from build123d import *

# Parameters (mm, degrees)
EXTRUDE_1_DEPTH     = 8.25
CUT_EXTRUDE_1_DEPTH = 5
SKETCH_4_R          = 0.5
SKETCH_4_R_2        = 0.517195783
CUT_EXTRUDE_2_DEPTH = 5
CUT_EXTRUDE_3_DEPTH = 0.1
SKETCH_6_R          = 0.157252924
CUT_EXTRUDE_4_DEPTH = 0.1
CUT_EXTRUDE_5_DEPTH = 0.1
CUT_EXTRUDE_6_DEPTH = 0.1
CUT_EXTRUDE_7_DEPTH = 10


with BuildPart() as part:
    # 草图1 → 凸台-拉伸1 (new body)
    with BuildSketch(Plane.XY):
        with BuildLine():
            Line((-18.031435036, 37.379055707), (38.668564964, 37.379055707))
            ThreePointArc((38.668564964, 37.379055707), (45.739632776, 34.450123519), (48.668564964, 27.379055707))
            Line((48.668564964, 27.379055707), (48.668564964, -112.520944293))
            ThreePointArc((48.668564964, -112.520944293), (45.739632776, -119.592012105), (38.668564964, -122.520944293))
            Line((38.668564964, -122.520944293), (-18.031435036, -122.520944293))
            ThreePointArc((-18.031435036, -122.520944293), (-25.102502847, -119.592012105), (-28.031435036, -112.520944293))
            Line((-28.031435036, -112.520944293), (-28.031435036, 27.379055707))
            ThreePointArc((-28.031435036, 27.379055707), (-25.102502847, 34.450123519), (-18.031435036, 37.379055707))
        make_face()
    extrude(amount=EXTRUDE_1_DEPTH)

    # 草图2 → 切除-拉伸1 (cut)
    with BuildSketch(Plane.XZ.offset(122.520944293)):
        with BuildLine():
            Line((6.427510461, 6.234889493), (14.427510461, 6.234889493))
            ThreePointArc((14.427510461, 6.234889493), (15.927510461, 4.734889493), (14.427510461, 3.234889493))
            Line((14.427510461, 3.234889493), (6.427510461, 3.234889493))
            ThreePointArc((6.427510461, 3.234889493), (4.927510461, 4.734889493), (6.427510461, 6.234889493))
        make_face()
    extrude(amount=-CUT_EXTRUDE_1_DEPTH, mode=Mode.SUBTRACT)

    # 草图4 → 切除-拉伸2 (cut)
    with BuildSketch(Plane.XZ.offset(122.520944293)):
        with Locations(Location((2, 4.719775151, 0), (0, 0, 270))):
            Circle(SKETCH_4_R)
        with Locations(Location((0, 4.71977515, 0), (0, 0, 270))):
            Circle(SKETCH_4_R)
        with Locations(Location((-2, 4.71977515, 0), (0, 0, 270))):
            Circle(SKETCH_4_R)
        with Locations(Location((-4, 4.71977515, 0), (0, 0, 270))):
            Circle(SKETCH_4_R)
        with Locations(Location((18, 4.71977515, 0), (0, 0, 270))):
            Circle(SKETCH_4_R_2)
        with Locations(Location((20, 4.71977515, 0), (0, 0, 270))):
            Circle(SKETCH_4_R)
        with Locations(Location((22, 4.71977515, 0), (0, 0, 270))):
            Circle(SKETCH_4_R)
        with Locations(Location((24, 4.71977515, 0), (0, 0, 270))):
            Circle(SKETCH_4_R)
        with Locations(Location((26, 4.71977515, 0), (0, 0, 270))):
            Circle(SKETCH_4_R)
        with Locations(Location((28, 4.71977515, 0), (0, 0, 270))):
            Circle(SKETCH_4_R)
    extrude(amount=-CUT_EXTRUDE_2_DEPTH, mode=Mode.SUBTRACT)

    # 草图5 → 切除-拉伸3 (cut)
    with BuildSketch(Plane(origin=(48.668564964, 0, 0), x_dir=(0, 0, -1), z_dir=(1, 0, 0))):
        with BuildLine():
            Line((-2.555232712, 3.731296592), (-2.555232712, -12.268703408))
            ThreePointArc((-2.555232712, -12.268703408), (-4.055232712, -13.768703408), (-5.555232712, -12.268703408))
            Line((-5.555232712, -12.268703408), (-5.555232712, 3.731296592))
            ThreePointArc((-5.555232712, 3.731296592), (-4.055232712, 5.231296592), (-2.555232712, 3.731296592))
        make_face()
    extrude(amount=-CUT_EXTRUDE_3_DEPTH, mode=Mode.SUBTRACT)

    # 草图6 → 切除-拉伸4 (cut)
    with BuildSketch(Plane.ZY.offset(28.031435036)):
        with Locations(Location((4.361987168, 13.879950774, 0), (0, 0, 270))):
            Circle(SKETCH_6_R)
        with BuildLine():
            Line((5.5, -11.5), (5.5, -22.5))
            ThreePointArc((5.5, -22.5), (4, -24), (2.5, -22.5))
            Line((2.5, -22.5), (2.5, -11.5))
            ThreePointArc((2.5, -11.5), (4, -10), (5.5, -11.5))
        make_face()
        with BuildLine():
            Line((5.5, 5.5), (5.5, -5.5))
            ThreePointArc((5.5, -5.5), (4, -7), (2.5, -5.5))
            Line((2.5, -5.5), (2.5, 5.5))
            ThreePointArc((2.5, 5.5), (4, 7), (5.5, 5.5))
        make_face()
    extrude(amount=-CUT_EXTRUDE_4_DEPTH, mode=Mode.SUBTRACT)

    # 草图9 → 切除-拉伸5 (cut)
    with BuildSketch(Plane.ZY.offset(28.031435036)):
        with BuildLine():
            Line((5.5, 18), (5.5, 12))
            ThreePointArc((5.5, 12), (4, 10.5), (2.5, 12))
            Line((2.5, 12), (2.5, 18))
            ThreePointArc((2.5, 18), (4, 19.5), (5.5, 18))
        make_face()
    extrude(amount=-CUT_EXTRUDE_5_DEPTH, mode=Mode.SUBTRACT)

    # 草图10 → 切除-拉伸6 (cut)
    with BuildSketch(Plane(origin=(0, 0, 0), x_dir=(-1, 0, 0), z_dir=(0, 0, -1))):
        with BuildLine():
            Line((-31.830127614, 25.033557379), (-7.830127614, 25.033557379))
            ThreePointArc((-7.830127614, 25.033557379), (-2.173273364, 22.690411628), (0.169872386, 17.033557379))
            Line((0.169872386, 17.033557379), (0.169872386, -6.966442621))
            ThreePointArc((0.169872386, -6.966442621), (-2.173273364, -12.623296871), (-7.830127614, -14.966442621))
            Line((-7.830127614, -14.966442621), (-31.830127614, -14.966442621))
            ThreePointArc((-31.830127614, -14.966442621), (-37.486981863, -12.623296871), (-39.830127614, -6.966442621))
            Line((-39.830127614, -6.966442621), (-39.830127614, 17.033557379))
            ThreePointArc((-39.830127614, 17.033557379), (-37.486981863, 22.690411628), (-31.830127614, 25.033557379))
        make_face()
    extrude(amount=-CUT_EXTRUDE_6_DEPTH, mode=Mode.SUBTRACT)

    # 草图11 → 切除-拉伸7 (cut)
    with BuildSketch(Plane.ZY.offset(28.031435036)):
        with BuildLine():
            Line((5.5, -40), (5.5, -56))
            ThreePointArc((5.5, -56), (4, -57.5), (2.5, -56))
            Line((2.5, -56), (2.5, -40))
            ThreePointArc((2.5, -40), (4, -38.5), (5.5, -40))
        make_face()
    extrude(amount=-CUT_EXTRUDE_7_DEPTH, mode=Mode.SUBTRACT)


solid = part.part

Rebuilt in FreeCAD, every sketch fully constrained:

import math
import FreeCAD as App
import Part
import Sketcher

V = App.Vector

doc = App.newDocument("Part")
params = doc.addObject("Spreadsheet::Sheet", "Params")
for row, (alias, value) in enumerate([
    ("sketch1_radius", "10 mm"),
    ("sketch1_width", "56.7 mm"),
    ("sketch1_height", "139.9 mm"),
    ("pad1_length", "8.25 mm"),
    ("sketch2_radius", "1.5 mm"),
    ("sketch2_width", "8 mm"),
    ("pocket1_length", "5 mm"),
    ("sketch3_diameter", "1 mm"),
    ("pocket2_length", "5 mm"),
    ("sketch4_radius", "1.5 mm"),
    ("sketch4_width", "16 mm"),
    ("pocket3_length", "0.1 mm"),
    ("sketch5_radius", "1.5 mm"),
    ("sketch5_width", "11 mm"),
    ("pocket4_length", "0.1 mm"),
    ("sketch6_radius", "1.5 mm"),
    ("sketch6_width", "6 mm"),
    ("pocket5_length", "0.1 mm"),
    ("sketch7_radius", "8 mm"),
    ("sketch7_width", "24 mm"),
    ("pocket6_length", "0.1 mm"),
    ("sketch8_radius", "1.5 mm"),
    ("sketch8_width", "16 mm"),
    ("pocket7_length", "10 mm"),
], start=1):
    params.set(f"A{row}", alias)
    params.set(f"B{row}", "=" + value)
    params.setAlias(f"B{row}", alias)

body = doc.addObject("PartDesign::Body", "Body")

sketch1 = doc.addObject("Sketcher::SketchObject", "Sketch")
body.addObject(sketch1)
sketch1.AttachmentSupport = (doc.XY_Plane, [""])
sketch1.MapMode = "FlatFace"
sketch1.addGeometry(Part.LineSegment(V(38.668565, 37.379056, 0), V(-18.031435, 37.379056, 0)), False)
sketch1.addGeometry(Part.ArcOfCircle(Part.Circle(V(-18.031435, 27.379056, 0), V(0, 0, 1), 10), math.radians(90), math.radians(180)), False)
sketch1.addGeometry(Part.LineSegment(V(-28.031435, 27.379056, 0), V(-28.031435, -112.520944, 0)), False)
sketch1.addGeometry(Part.ArcOfCircle(Part.Circle(V(-18.031435, -112.520944, 0), V(0, 0, 1), 10), math.radians(-180), math.radians(-90)), False)
sketch1.addGeometry(Part.LineSegment(V(-18.031435, -122.520944, 0), V(38.668565, -122.520944, 0)), False)
sketch1.addGeometry(Part.ArcOfCircle(Part.Circle(V(38.668565, -112.520944, 0), V(0, 0, 1), 10), math.radians(-90), math.radians(0)), False)
sketch1.addGeometry(Part.LineSegment(V(48.668565, -112.520944, 0), V(48.668565, 27.379056, 0)), False)
sketch1.addGeometry(Part.ArcOfCircle(Part.Circle(V(38.668565, 27.379056, 0), V(0, 0, 1), 10), math.radians(0), math.radians(90)), False)
sketch1.addConstraint(Sketcher.Constraint("Tangent", 0, 2, 1, 1))
sketch1.addConstraint(Sketcher.Constraint("Tangent", 1, 2, 2, 1))
sketch1.addConstraint(Sketcher.Constraint("Tangent", 2, 2, 3, 1))
sketch1.addConstraint(Sketcher.Constraint("Tangent", 3, 2, 4, 1))
sketch1.addConstraint(Sketcher.Constraint("Tangent", 4, 2, 5, 1))
sketch1.addConstraint(Sketcher.Constraint("Tangent", 5, 2, 6, 1))
sketch1.addConstraint(Sketcher.Constraint("Tangent", 6, 2, 7, 1))
sketch1.addConstraint(Sketcher.Constraint("Tangent", 7, 2, 0, 1))
sketch1.addConstraint(Sketcher.Constraint("Horizontal", 0))
sketch1.addConstraint(Sketcher.Constraint("Vertical", 2))
sketch1.addConstraint(Sketcher.Constraint("Horizontal", 4))
sketch1.addConstraint(Sketcher.Constraint("Vertical", 6))
sketch1.addConstraint(Sketcher.Constraint("Equal", 1, 3))
sketch1.addConstraint(Sketcher.Constraint("Equal", 3, 5))
sketch1.addConstraint(Sketcher.Constraint("Equal", 5, 7))
sketch1.addConstraint(Sketcher.Constraint("Radius", 1, 10.0))
sketch1.addConstraint(Sketcher.Constraint("DistanceX", 0, 2, 0, 1, 56.7))
sketch1.addConstraint(Sketcher.Constraint("DistanceY", 2, 2, 2, 1, 139.9))
sketch1.addConstraint(Sketcher.Constraint("DistanceX", 1, 3, -1, 1, 18.031435))
sketch1.addConstraint(Sketcher.Constraint("DistanceY", -1, 1, 1, 3, 27.379056))
sketch1.setExpression("Constraints[15]", "Params.sketch1_radius")
sketch1.setExpression("Constraints[16]", "Params.sketch1_width")
sketch1.setExpression("Constraints[17]", "Params.sketch1_height")
pad1 = doc.addObject("PartDesign::Pad", "Pad")
body.addObject(pad1)
pad1.Profile = sketch1
pad1.setExpression("Length", "Params.pad1_length")

sketch2 = doc.addObject("Sketcher::SketchObject", "Sketch001")
body.addObject(sketch2)
sketch2.AttachmentSupport = (doc.XZ_Plane, [""])
sketch2.MapMode = "FlatFace"
sketch2.AttachmentOffset = App.Placement(V(0, 0, 122.520944), App.Rotation())
sketch2.addGeometry(Part.LineSegment(V(14.42751, 6.234889, 0), V(6.42751, 6.234889, 0)), False)
sketch2.addGeometry(Part.ArcOfCircle(Part.Circle(V(6.42751, 4.734889, 0), V(0, 0, 1), 1.5), math.radians(90), math.radians(270)), False)
sketch2.addGeometry(Part.LineSegment(V(6.42751, 3.234889, 0), V(14.42751, 3.234889, 0)), False)
sketch2.addGeometry(Part.ArcOfCircle(Part.Circle(V(14.42751, 4.734889, 0), V(0, 0, 1), 1.5), math.radians(-90), math.radians(90)), False)
sketch2.addConstraint(Sketcher.Constraint("Tangent", 0, 2, 1, 1))
sketch2.addConstraint(Sketcher.Constraint("Tangent", 1, 2, 2, 1))
sketch2.addConstraint(Sketcher.Constraint("Tangent", 2, 2, 3, 1))
sketch2.addConstraint(Sketcher.Constraint("Tangent", 3, 2, 0, 1))
sketch2.addConstraint(Sketcher.Constraint("Horizontal", 0))
sketch2.addConstraint(Sketcher.Constraint("Horizontal", 2))
sketch2.addConstraint(Sketcher.Constraint("Radius", 1, 1.5))
sketch2.addConstraint(Sketcher.Constraint("DistanceX", 0, 2, 0, 1, 8.0))
sketch2.addConstraint(Sketcher.Constraint("DistanceX", -1, 1, 1, 3, 6.42751))
sketch2.addConstraint(Sketcher.Constraint("DistanceY", -1, 1, 1, 3, 4.734889))
sketch2.setExpression("Constraints[6]", "Params.sketch2_radius")
sketch2.setExpression("Constraints[7]", "Params.sketch2_width")
pocket1 = doc.addObject("PartDesign::Pocket", "Pocket")
body.addObject(pocket1)
pocket1.Profile = sketch2
pocket1.setExpression("Length", "Params.pocket1_length")

sketch3 = doc.addObject("Sketcher::SketchObject", "Sketch002")
body.addObject(sketch3)
sketch3.AttachmentSupport = (doc.XZ_Plane, [""])
sketch3.MapMode = "FlatFace"
sketch3.AttachmentOffset = App.Placement(V(0, 0, 122.520944), App.Rotation())
sketch3.addGeometry(Part.Circle(V(2, 4.719775, 0), V(0, 0, 1), 0.5), False)
sketch3.addGeometry(Part.Circle(V(0, 4.719775, 0), V(0, 0, 1), 0.5), False)
sketch3.addGeometry(Part.Circle(V(-2, 4.719775, 0), V(0, 0, 1), 0.5), False)
sketch3.addGeometry(Part.Circle(V(-4, 4.719775, 0), V(0, 0, 1), 0.5), False)
sketch3.addGeometry(Part.Circle(V(18, 4.719775, 0), V(0, 0, 1), 0.517196), False)
sketch3.addGeometry(Part.Circle(V(20, 4.719775, 0), V(0, 0, 1), 0.5), False)
sketch3.addGeometry(Part.Circle(V(22, 4.719775, 0), V(0, 0, 1), 0.5), False)
sketch3.addGeometry(Part.Circle(V(24, 4.719775, 0), V(0, 0, 1), 0.5), False)
sketch3.addGeometry(Part.Circle(V(26, 4.719775, 0), V(0, 0, 1), 0.5), False)
sketch3.addGeometry(Part.Circle(V(28, 4.719775, 0), V(0, 0, 1), 0.5), False)
sketch3.addConstraint(Sketcher.Constraint("Equal", 0, 1))
sketch3.addConstraint(Sketcher.Constraint("Equal", 1, 2))
sketch3.addConstraint(Sketcher.Constraint("Equal", 2, 3))
sketch3.addConstraint(Sketcher.Constraint("Equal", 3, 5))
sketch3.addConstraint(Sketcher.Constraint("Equal", 5, 6))
sketch3.addConstraint(Sketcher.Constraint("Equal", 6, 7))
sketch3.addConstraint(Sketcher.Constraint("Equal", 7, 8))
sketch3.addConstraint(Sketcher.Constraint("Equal", 8, 9))
sketch3.addConstraint(Sketcher.Constraint("Symmetric", 0, 3, 2, 3, -2))
sketch3.addConstraint(Sketcher.Constraint("PointOnObject", 1, 3, -2))
sketch3.addConstraint(Sketcher.Constraint("Horizontal", 0, 3, 1, 3))
sketch3.addConstraint(Sketcher.Constraint("Horizontal", 2, 3, 3, 3))
sketch3.addConstraint(Sketcher.Constraint("Horizontal", 3, 3, 4, 3))
sketch3.addConstraint(Sketcher.Constraint("Horizontal", 4, 3, 5, 3))
sketch3.addConstraint(Sketcher.Constraint("Horizontal", 5, 3, 6, 3))
sketch3.addConstraint(Sketcher.Constraint("Horizontal", 6, 3, 7, 3))
sketch3.addConstraint(Sketcher.Constraint("Horizontal", 7, 3, 8, 3))
sketch3.addConstraint(Sketcher.Constraint("Horizontal", 8, 3, 9, 3))
sketch3.addConstraint(Sketcher.Constraint("Diameter", 0, 1.0))
sketch3.addConstraint(Sketcher.Constraint("DistanceX", -1, 1, 0, 3, 2.0))
sketch3.addConstraint(Sketcher.Constraint("DistanceX", 3, 3, -1, 1, 4.0))
sketch3.addConstraint(Sketcher.Constraint("DistanceX", -1, 1, 4, 3, 18.0))
sketch3.addConstraint(Sketcher.Constraint("DistanceX", -1, 1, 5, 3, 20.0))
sketch3.addConstraint(Sketcher.Constraint("DistanceX", -1, 1, 6, 3, 22.0))
sketch3.addConstraint(Sketcher.Constraint("DistanceX", -1, 1, 7, 3, 24.0))
sketch3.addConstraint(Sketcher.Constraint("DistanceX", -1, 1, 8, 3, 26.0))
sketch3.addConstraint(Sketcher.Constraint("DistanceX", -1, 1, 9, 3, 28.0))
sketch3.addConstraint(Sketcher.Constraint("Diameter", 4, 1.034392))
sketch3.addConstraint(Sketcher.Constraint("DistanceY", -1, 1, 0, 3, 4.719775))
sketch3.setExpression("Constraints[18]", "Params.sketch3_diameter")
pocket2 = doc.addObject("PartDesign::Pocket", "Pocket001")
body.addObject(pocket2)
pocket2.Profile = sketch3
pocket2.setExpression("Length", "Params.pocket2_length")

sketch4 = doc.addObject("Sketcher::SketchObject", "Sketch003")
body.addObject(sketch4)
sketch4.AttachmentSupport = (doc.YZ_Plane, [""])
sketch4.MapMode = "FlatFace"
sketch4.AttachmentOffset = App.Placement(V(0, 0, 48.668565), App.Rotation())
sketch4.addGeometry(Part.LineSegment(V(-12.268703, 2.555233, 0), V(3.731297, 2.555233, 0)), False)
sketch4.addGeometry(Part.ArcOfCircle(Part.Circle(V(3.731297, 4.055233, 0), V(0, 0, 1), 1.5), math.radians(-90), math.radians(90)), False)
sketch4.addGeometry(Part.LineSegment(V(3.731297, 5.555233, 0), V(-12.268703, 5.555233, 0)), False)
sketch4.addGeometry(Part.ArcOfCircle(Part.Circle(V(-12.268703, 4.055233, 0), V(0, 0, 1), 1.5), math.radians(90), math.radians(270)), False)
sketch4.addConstraint(Sketcher.Constraint("Tangent", 0, 2, 1, 1))
sketch4.addConstraint(Sketcher.Constraint("Tangent", 1, 2, 2, 1))
sketch4.addConstraint(Sketcher.Constraint("Tangent", 2, 2, 3, 1))
sketch4.addConstraint(Sketcher.Constraint("Tangent", 3, 2, 0, 1))
sketch4.addConstraint(Sketcher.Constraint("Horizontal", 0))
sketch4.addConstraint(Sketcher.Constraint("Horizontal", 2))
sketch4.addConstraint(Sketcher.Constraint("Radius", 1, 1.5))
sketch4.addConstraint(Sketcher.Constraint("DistanceX", 0, 1, 0, 2, 16.0))
sketch4.addConstraint(Sketcher.Constraint("DistanceX", -1, 1, 1, 3, 3.731297))
sketch4.addConstraint(Sketcher.Constraint("DistanceY", -1, 1, 1, 3, 4.055233))
sketch4.setExpression("Constraints[6]", "Params.sketch4_radius")
sketch4.setExpression("Constraints[7]", "Params.sketch4_width")
pocket3 = doc.addObject("PartDesign::Pocket", "Pocket002")
body.addObject(pocket3)
pocket3.Profile = sketch4
pocket3.setExpression("Length", "Params.pocket3_length")

sketch5 = doc.addObject("Sketcher::SketchObject", "Sketch004")
body.addObject(sketch5)
sketch5.AttachmentSupport = (doc.YZ_Plane, [""])
sketch5.MapMode = "FlatFace"
sketch5.AttachmentOffset = App.Placement(V(0, 0, -28.031435), App.Rotation())
sketch5.addGeometry(Part.Circle(V(13.879951, 4.361987, 0), V(0, 0, 1), 0.157253), False)
sketch5.addGeometry(Part.LineSegment(V(-22.5, 5.5, 0), V(-11.5, 5.5, 0)), False)
sketch5.addGeometry(Part.ArcOfCircle(Part.Circle(V(-11.5, 4, 0), V(0, 0, 1), 1.5), math.radians(-90), math.radians(90)), False)
sketch5.addGeometry(Part.LineSegment(V(-11.5, 2.5, 0), V(-22.5, 2.5, 0)), False)
sketch5.addGeometry(Part.ArcOfCircle(Part.Circle(V(-22.5, 4, 0), V(0, 0, 1), 1.5), math.radians(90), math.radians(270)), False)
sketch5.addGeometry(Part.LineSegment(V(-5.5, 5.5, 0), V(5.5, 5.5, 0)), False)
sketch5.addGeometry(Part.ArcOfCircle(Part.Circle(V(5.5, 4, 0), V(0, 0, 1), 1.5), math.radians(-90), math.radians(90)), False)
sketch5.addGeometry(Part.LineSegment(V(5.5, 2.5, 0), V(-5.5, 2.5, 0)), False)
sketch5.addGeometry(Part.ArcOfCircle(Part.Circle(V(-5.5, 4, 0), V(0, 0, 1), 1.5), math.radians(90), math.radians(270)), False)
sketch5.addConstraint(Sketcher.Constraint("Tangent", 1, 2, 2, 2))
sketch5.addConstraint(Sketcher.Constraint("Tangent", 2, 1, 3, 1))
sketch5.addConstraint(Sketcher.Constraint("Tangent", 3, 2, 4, 2))
sketch5.addConstraint(Sketcher.Constraint("Tangent", 4, 1, 1, 1))
sketch5.addConstraint(Sketcher.Constraint("Tangent", 5, 2, 6, 2))
sketch5.addConstraint(Sketcher.Constraint("Tangent", 6, 1, 7, 1))
sketch5.addConstraint(Sketcher.Constraint("Tangent", 7, 2, 8, 2))
sketch5.addConstraint(Sketcher.Constraint("Tangent", 8, 1, 5, 1))
sketch5.addConstraint(Sketcher.Constraint("Horizontal", 1))
sketch5.addConstraint(Sketcher.Constraint("Horizontal", 3))
sketch5.addConstraint(Sketcher.Constraint("Horizontal", 5))
sketch5.addConstraint(Sketcher.Constraint("Horizontal", 7))
sketch5.addConstraint(Sketcher.Constraint("Equal", 4, 6))
sketch5.addConstraint(Sketcher.Constraint("Horizontal", 4, 3, 6, 3))
sketch5.addConstraint(Sketcher.Constraint("Equal", 3, 5))
sketch5.addConstraint(Sketcher.Constraint("Radius", 2, 1.5))
sketch5.addConstraint(Sketcher.Constraint("DistanceX", 1, 1, 1, 2, 11.0))
sketch5.addConstraint(Sketcher.Constraint("DistanceY", -1, 1, 2, 3, 4.0))
sketch5.addConstraint(Sketcher.Constraint("DistanceX", 2, 3, 6, 3, 17.0))
sketch5.addConstraint(Sketcher.Constraint("DistanceX", 2, 3, -1, 1, 11.5))
sketch5.addConstraint(Sketcher.Constraint("Diameter", 0, 0.314506))
sketch5.addConstraint(Sketcher.Constraint("DistanceX", -1, 1, 0, 3, 13.879951))
sketch5.addConstraint(Sketcher.Constraint("DistanceY", -1, 1, 0, 3, 4.361987))
sketch5.setExpression("Constraints[15]", "Params.sketch5_radius")
sketch5.setExpression("Constraints[16]", "Params.sketch5_width")
pocket4 = doc.addObject("PartDesign::Pocket", "Pocket003")
body.addObject(pocket4)
pocket4.Profile = sketch5
pocket4.setExpression("Length", "Params.pocket4_length")
pocket4.Reversed = True

sketch6 = doc.addObject("Sketcher::SketchObject", "Sketch005")
body.addObject(sketch6)
sketch6.AttachmentSupport = (doc.YZ_Plane, [""])
sketch6.MapMode = "FlatFace"
sketch6.AttachmentOffset = App.Placement(V(0, 0, -28.031435), App.Rotation())
sketch6.addGeometry(Part.LineSegment(V(12, 5.5, 0), V(18, 5.5, 0)), False)
sketch6.addGeometry(Part.ArcOfCircle(Part.Circle(V(18, 4, 0), V(0, 0, 1), 1.5), math.radians(-90), math.radians(90)), False)
sketch6.addGeometry(Part.LineSegment(V(18, 2.5, 0), V(12, 2.5, 0)), False)
sketch6.addGeometry(Part.ArcOfCircle(Part.Circle(V(12, 4, 0), V(0, 0, 1), 1.5), math.radians(90), math.radians(270)), False)
sketch6.addConstraint(Sketcher.Constraint("Tangent", 0, 2, 1, 2))
sketch6.addConstraint(Sketcher.Constraint("Tangent", 1, 1, 2, 1))
sketch6.addConstraint(Sketcher.Constraint("Tangent", 2, 2, 3, 2))
sketch6.addConstraint(Sketcher.Constraint("Tangent", 3, 1, 0, 1))
sketch6.addConstraint(Sketcher.Constraint("Horizontal", 0))
sketch6.addConstraint(Sketcher.Constraint("Horizontal", 2))
sketch6.addConstraint(Sketcher.Constraint("Radius", 1, 1.5))
sketch6.addConstraint(Sketcher.Constraint("DistanceX", 0, 1, 0, 2, 6.0))
sketch6.addConstraint(Sketcher.Constraint("DistanceX", -1, 1, 1, 3, 18.0))
sketch6.addConstraint(Sketcher.Constraint("DistanceY", -1, 1, 1, 3, 4.0))
sketch6.setExpression("Constraints[6]", "Params.sketch6_radius")
sketch6.setExpression("Constraints[7]", "Params.sketch6_width")
pocket5 = doc.addObject("PartDesign::Pocket", "Pocket004")
body.addObject(pocket5)
pocket5.Profile = sketch6
pocket5.setExpression("Length", "Params.pocket5_length")
pocket5.Reversed = True

sketch7 = doc.addObject("Sketcher::SketchObject", "Sketch006")
body.addObject(sketch7)
sketch7.AttachmentSupport = (doc.XY_Plane, [""])
sketch7.MapMode = "FlatFace"
sketch7.addGeometry(Part.LineSegment(V(7.830128, 25.033557, 0), V(31.830128, 25.033557, 0)), False)
sketch7.addGeometry(Part.ArcOfCircle(Part.Circle(V(31.830128, 17.033557, 0), V(0, 0, 1), 8), math.radians(0), math.radians(90)), False)
sketch7.addGeometry(Part.LineSegment(V(39.830128, 17.033557, 0), V(39.830128, -6.966443, 0)), False)
sketch7.addGeometry(Part.ArcOfCircle(Part.Circle(V(31.830128, -6.966443, 0), V(0, 0, 1), 8), math.radians(-90), math.radians(0)), False)
sketch7.addGeometry(Part.LineSegment(V(31.830128, -14.966443, 0), V(7.830128, -14.966443, 0)), False)
sketch7.addGeometry(Part.ArcOfCircle(Part.Circle(V(7.830128, -6.966443, 0), V(0, 0, 1), 8), math.radians(180), math.radians(270)), False)
sketch7.addGeometry(Part.LineSegment(V(-0.169872, -6.966443, 0), V(-0.169872, 17.033557, 0)), False)
sketch7.addGeometry(Part.ArcOfCircle(Part.Circle(V(7.830128, 17.033557, 0), V(0, 0, 1), 8), math.radians(90), math.radians(180)), False)
sketch7.addConstraint(Sketcher.Constraint("Tangent", 0, 2, 1, 2))
sketch7.addConstraint(Sketcher.Constraint("Tangent", 1, 1, 2, 1))
sketch7.addConstraint(Sketcher.Constraint("Tangent", 2, 2, 3, 2))
sketch7.addConstraint(Sketcher.Constraint("Tangent", 3, 1, 4, 1))
sketch7.addConstraint(Sketcher.Constraint("Tangent", 4, 2, 5, 2))
sketch7.addConstraint(Sketcher.Constraint("Tangent", 5, 1, 6, 1))
sketch7.addConstraint(Sketcher.Constraint("Tangent", 6, 2, 7, 2))
sketch7.addConstraint(Sketcher.Constraint("Tangent", 7, 1, 0, 1))
sketch7.addConstraint(Sketcher.Constraint("Horizontal", 0))
sketch7.addConstraint(Sketcher.Constraint("Vertical", 2))
sketch7.addConstraint(Sketcher.Constraint("Horizontal", 4))
sketch7.addConstraint(Sketcher.Constraint("Vertical", 6))
sketch7.addConstraint(Sketcher.Constraint("Equal", 1, 3))
sketch7.addConstraint(Sketcher.Constraint("Equal", 3, 5))
sketch7.addConstraint(Sketcher.Constraint("Equal", 5, 7))
sketch7.addConstraint(Sketcher.Constraint("Equal", 4, 2))
sketch7.addConstraint(Sketcher.Constraint("Radius", 1, 8.0))
sketch7.addConstraint(Sketcher.Constraint("DistanceX", 0, 1, 0, 2, 24.0))
sketch7.addConstraint(Sketcher.Constraint("DistanceX", -1, 1, 1, 3, 31.830128))
sketch7.addConstraint(Sketcher.Constraint("DistanceY", -1, 1, 1, 3, 17.033557))
sketch7.setExpression("Constraints[16]", "Params.sketch7_radius")
sketch7.setExpression("Constraints[17]", "Params.sketch7_width")
pocket6 = doc.addObject("PartDesign::Pocket", "Pocket005")
body.addObject(pocket6)
pocket6.Profile = sketch7
pocket6.setExpression("Length", "Params.pocket6_length")
pocket6.Reversed = True

sketch8 = doc.addObject("Sketcher::SketchObject", "Sketch007")
body.addObject(sketch8)
sketch8.AttachmentSupport = (doc.YZ_Plane, [""])
sketch8.MapMode = "FlatFace"
sketch8.AttachmentOffset = App.Placement(V(0, 0, -28.031435), App.Rotation())
sketch8.addGeometry(Part.LineSegment(V(-56, 5.5, 0), V(-40, 5.5, 0)), False)
sketch8.addGeometry(Part.ArcOfCircle(Part.Circle(V(-40, 4, 0), V(0, 0, 1), 1.5), math.radians(-90), math.radians(90)), False)
sketch8.addGeometry(Part.LineSegment(V(-40, 2.5, 0), V(-56, 2.5, 0)), False)
sketch8.addGeometry(Part.ArcOfCircle(Part.Circle(V(-56, 4, 0), V(0, 0, 1), 1.5), math.radians(90), math.radians(270)), False)
sketch8.addConstraint(Sketcher.Constraint("Tangent", 0, 2, 1, 2))
sketch8.addConstraint(Sketcher.Constraint("Tangent", 1, 1, 2, 1))
sketch8.addConstraint(Sketcher.Constraint("Tangent", 2, 2, 3, 2))
sketch8.addConstraint(Sketcher.Constraint("Tangent", 3, 1, 0, 1))
sketch8.addConstraint(Sketcher.Constraint("Horizontal", 0))
sketch8.addConstraint(Sketcher.Constraint("Horizontal", 2))
sketch8.addConstraint(Sketcher.Constraint("Radius", 1, 1.5))
sketch8.addConstraint(Sketcher.Constraint("DistanceX", 0, 1, 0, 2, 16.0))
sketch8.addConstraint(Sketcher.Constraint("DistanceX", 1, 3, -1, 1, 40.0))
sketch8.addConstraint(Sketcher.Constraint("DistanceY", -1, 1, 1, 3, 4.0))
sketch8.setExpression("Constraints[6]", "Params.sketch8_radius")
sketch8.setExpression("Constraints[7]", "Params.sketch8_width")
pocket7 = doc.addObject("PartDesign::Pocket", "Pocket006")
body.addObject(pocket7)
pocket7.Profile = sketch8
pocket7.setExpression("Length", "Params.pocket7_length")
pocket7.Reversed = True

doc.recompute()
